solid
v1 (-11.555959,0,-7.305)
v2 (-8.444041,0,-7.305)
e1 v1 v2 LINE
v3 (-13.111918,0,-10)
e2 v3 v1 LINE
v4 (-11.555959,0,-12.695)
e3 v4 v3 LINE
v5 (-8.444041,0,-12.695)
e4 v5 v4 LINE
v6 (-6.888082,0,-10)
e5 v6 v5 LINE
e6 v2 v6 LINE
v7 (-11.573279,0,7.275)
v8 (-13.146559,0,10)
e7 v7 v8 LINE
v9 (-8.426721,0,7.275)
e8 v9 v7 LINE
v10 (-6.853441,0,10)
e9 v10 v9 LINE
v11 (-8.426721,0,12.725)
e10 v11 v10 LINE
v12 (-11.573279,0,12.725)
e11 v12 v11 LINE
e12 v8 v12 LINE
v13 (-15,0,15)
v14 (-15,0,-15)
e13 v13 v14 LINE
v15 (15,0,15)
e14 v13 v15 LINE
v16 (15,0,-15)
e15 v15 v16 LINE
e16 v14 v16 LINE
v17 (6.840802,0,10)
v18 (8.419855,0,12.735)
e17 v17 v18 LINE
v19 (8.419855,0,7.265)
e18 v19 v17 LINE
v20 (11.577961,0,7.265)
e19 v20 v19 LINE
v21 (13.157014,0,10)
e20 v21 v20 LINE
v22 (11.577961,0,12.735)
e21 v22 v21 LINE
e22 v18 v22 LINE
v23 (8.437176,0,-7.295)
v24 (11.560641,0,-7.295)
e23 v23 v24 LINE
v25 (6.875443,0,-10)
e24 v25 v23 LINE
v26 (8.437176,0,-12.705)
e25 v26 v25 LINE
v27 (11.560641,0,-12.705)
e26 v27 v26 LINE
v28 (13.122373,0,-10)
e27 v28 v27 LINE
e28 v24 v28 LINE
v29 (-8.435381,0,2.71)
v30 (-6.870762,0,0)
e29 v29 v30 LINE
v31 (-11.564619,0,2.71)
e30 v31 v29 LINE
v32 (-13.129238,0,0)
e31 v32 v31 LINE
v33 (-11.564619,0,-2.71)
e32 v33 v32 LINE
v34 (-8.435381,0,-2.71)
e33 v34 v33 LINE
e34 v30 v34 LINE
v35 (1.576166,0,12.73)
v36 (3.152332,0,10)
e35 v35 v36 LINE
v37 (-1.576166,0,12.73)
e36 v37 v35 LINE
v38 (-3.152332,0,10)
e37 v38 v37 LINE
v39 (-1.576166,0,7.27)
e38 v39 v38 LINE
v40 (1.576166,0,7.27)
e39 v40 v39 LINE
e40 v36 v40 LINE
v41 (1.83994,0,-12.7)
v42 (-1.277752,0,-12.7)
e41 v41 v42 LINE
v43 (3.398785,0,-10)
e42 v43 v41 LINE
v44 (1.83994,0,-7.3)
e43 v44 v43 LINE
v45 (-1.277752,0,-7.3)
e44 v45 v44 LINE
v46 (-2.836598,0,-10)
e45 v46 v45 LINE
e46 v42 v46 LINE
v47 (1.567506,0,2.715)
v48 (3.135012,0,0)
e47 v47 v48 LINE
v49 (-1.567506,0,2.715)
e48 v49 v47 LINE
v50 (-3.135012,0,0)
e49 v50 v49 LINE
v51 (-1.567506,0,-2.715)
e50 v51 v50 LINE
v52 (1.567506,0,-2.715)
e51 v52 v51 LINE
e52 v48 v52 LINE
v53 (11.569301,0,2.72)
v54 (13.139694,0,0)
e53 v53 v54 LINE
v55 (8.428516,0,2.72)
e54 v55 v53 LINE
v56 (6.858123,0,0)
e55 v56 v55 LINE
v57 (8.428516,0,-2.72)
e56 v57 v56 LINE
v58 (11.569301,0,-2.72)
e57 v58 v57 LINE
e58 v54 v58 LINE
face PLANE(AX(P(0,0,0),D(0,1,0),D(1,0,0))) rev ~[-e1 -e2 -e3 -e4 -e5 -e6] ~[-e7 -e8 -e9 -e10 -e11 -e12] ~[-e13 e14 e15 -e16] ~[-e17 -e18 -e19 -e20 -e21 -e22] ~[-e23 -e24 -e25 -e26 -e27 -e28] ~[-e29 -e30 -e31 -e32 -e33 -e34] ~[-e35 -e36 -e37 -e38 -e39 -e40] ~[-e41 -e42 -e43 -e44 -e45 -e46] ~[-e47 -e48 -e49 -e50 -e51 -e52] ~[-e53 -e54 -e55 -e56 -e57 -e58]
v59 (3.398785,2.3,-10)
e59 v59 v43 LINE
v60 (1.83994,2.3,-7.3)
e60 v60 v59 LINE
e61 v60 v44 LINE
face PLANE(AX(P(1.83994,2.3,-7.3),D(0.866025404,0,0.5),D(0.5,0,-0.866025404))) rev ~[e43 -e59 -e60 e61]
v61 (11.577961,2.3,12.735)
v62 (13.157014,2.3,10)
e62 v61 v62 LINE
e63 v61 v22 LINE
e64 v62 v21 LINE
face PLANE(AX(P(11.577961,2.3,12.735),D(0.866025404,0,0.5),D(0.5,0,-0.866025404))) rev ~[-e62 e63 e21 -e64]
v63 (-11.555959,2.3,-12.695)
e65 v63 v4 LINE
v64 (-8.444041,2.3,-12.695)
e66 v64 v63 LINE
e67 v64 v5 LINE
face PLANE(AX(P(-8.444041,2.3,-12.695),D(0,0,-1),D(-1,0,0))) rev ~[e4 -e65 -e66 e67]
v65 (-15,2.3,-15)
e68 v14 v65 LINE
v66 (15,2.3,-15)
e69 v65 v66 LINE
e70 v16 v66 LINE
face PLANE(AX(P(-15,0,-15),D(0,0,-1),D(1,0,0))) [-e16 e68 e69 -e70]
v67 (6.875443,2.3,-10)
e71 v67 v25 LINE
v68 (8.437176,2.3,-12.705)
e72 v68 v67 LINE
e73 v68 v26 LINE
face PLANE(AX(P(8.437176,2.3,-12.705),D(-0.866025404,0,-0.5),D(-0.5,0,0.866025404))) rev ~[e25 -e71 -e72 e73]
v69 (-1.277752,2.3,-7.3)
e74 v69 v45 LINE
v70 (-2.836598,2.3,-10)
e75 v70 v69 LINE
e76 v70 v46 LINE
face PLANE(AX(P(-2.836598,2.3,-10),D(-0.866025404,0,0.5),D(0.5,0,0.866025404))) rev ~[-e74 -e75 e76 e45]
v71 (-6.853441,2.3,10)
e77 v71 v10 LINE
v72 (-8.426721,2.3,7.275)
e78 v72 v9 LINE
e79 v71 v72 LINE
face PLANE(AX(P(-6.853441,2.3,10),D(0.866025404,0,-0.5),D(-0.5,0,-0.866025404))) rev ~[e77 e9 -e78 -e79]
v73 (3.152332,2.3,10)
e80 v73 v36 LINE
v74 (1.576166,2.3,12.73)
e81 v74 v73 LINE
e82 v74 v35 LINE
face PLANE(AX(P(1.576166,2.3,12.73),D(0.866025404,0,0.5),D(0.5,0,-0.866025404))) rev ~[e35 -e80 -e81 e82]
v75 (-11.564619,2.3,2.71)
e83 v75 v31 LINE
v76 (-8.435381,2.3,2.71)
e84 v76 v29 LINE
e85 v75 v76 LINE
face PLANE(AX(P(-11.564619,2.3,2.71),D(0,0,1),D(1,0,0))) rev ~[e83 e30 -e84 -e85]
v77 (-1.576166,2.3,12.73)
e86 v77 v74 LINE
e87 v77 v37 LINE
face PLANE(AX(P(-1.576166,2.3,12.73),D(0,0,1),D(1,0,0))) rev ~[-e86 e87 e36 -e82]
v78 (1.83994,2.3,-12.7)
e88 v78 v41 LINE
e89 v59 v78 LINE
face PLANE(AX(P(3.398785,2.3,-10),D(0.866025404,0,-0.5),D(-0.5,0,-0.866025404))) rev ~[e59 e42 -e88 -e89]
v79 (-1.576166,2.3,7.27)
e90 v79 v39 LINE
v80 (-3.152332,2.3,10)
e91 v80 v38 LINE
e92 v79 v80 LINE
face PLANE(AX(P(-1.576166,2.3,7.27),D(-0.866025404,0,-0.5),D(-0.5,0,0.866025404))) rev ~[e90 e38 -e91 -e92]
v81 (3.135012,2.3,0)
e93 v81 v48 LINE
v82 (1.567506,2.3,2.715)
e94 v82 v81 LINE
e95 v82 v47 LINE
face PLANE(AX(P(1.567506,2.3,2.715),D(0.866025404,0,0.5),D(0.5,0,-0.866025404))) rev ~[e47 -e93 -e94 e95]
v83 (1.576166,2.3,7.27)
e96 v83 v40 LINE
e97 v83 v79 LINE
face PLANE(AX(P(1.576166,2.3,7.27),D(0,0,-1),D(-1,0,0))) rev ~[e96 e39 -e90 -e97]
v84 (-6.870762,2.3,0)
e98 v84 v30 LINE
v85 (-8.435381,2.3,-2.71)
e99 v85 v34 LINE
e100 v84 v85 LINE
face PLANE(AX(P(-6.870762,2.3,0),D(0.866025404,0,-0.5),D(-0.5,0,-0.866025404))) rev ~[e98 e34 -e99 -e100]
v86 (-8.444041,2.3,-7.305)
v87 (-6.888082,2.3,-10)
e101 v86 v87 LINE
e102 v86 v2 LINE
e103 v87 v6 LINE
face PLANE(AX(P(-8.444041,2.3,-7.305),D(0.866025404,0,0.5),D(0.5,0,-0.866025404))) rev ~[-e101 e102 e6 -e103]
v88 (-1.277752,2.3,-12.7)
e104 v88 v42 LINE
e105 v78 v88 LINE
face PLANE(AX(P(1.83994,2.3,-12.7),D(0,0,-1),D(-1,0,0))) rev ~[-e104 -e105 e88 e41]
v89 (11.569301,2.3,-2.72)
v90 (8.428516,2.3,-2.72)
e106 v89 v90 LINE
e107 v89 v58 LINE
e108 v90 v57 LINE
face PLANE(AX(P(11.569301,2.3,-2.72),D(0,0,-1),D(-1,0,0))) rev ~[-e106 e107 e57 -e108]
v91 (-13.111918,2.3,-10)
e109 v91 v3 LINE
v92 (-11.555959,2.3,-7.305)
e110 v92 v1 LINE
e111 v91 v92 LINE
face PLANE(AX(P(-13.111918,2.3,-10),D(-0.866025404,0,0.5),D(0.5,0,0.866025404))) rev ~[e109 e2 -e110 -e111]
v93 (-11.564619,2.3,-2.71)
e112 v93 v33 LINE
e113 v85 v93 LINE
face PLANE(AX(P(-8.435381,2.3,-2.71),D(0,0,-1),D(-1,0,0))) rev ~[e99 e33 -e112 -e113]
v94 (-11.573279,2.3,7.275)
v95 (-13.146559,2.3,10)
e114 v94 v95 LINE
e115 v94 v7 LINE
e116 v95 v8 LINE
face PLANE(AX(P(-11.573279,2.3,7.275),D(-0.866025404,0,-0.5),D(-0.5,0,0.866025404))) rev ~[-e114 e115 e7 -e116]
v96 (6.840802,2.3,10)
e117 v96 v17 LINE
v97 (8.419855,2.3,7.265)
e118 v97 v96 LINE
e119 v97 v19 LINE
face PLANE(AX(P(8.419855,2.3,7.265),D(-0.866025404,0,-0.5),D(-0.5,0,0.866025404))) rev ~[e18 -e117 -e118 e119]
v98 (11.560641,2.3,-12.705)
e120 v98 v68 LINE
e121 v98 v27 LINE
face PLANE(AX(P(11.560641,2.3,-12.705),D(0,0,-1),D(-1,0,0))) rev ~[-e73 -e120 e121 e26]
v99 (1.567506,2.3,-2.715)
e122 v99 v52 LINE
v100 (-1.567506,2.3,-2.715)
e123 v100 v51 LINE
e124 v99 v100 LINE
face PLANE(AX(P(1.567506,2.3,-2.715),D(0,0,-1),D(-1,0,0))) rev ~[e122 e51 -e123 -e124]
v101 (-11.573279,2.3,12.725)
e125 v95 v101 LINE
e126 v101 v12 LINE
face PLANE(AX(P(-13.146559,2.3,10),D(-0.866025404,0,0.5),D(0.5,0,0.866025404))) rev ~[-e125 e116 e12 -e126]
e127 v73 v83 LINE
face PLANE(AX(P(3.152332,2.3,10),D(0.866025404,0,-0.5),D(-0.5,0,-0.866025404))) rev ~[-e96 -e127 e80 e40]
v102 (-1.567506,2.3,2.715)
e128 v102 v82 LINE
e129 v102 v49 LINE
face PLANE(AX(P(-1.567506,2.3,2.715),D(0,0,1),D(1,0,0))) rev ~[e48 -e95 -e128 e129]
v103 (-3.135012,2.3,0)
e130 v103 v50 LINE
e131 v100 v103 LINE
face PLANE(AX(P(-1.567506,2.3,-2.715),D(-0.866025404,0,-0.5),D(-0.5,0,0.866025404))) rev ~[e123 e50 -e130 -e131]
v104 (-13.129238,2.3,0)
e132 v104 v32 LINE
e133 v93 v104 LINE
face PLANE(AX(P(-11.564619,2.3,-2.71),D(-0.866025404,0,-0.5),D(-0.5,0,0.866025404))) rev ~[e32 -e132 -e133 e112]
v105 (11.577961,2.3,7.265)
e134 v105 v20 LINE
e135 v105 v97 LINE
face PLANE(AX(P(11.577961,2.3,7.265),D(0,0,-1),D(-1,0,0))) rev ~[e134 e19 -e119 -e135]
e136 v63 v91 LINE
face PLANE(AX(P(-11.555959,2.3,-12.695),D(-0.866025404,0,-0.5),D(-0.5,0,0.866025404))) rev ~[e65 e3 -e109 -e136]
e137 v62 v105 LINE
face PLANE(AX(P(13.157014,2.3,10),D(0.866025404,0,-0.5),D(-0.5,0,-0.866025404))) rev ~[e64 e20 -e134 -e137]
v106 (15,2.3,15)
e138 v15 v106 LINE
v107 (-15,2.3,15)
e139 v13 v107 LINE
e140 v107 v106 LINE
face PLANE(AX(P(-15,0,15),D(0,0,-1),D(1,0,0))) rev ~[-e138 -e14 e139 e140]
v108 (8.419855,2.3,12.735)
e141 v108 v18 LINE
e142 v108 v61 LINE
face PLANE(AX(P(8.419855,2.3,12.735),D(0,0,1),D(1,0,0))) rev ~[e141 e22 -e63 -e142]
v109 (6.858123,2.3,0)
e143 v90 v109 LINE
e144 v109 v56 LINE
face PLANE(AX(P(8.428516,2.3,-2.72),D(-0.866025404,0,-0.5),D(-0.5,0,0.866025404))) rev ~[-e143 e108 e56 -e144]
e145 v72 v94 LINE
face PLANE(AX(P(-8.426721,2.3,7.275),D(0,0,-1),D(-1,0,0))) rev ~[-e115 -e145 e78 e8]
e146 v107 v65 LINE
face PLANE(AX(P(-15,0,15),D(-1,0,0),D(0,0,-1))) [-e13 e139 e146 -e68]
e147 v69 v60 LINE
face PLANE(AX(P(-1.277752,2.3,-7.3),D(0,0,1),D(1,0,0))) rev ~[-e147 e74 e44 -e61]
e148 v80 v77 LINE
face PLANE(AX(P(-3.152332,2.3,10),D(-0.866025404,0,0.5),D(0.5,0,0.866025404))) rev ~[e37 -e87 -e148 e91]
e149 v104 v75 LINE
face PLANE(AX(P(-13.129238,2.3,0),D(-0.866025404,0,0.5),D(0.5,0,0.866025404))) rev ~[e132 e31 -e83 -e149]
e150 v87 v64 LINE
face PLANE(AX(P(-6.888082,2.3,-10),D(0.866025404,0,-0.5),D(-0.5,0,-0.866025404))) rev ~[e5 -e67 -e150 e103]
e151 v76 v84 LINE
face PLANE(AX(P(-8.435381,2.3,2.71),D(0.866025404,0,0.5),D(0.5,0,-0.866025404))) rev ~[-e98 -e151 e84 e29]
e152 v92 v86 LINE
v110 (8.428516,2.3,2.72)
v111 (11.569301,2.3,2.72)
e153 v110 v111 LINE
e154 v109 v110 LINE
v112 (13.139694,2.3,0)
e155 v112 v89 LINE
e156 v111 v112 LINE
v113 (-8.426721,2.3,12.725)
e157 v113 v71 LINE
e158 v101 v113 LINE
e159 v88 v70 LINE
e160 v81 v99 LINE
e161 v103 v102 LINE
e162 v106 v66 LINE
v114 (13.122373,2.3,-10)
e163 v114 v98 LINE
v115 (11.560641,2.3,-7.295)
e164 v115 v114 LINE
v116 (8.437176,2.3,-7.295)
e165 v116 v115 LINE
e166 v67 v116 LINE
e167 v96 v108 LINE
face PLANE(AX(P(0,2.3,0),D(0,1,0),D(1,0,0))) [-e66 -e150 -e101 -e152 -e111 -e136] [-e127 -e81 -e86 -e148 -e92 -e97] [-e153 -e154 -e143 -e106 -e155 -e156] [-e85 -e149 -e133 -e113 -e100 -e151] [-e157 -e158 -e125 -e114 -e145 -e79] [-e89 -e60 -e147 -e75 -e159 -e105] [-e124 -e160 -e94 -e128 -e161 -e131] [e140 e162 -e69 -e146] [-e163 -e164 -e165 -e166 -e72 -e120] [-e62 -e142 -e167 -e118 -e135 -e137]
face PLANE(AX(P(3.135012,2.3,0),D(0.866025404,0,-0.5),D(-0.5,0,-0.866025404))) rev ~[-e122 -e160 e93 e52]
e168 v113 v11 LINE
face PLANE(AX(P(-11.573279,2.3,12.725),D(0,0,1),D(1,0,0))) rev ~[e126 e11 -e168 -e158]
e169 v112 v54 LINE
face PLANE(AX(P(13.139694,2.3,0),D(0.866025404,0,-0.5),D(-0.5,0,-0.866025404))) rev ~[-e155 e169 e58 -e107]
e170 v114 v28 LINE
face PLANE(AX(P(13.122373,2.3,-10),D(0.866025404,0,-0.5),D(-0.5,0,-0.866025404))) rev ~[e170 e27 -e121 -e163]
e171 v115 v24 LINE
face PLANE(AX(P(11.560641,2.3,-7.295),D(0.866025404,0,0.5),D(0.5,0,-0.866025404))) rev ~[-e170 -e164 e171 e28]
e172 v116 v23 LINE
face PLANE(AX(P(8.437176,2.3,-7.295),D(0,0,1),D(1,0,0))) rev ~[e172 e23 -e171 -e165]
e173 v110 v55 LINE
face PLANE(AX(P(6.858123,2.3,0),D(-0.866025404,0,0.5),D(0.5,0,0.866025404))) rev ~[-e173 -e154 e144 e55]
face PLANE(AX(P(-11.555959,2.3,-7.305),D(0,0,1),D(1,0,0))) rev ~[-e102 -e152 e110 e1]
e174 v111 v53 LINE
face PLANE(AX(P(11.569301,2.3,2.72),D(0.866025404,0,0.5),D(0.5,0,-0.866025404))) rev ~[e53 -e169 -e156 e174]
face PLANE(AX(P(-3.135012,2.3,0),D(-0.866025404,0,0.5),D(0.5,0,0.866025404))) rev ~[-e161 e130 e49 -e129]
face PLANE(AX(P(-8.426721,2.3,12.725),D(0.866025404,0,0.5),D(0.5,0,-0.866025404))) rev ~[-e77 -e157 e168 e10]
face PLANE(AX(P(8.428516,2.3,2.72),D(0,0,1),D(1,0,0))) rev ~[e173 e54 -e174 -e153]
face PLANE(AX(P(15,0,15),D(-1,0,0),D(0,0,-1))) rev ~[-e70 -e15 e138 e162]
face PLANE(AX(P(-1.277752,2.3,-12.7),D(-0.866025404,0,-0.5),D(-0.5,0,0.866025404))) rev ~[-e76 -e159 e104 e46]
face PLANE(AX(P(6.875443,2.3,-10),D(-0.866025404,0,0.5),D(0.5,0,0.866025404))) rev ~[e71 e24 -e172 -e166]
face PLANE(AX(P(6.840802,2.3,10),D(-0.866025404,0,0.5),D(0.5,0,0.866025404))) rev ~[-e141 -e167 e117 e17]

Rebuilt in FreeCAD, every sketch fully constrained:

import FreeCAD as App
import Part
import Sketcher
Q = App.Units.Quantity


def add_polygon(sketch, points):
    """Adds a closed chain of lines whose ends are joined by coincident constraints."""
    first, n = sketch.GeometryCount, len(points)
    for a, b in zip(points, points[1:] + points[:1]):
        sketch.addGeometry(Part.LineSegment(App.Vector(*a, 0), App.Vector(*b, 0)), False)
    for i in range(n):
        sketch.addConstraint(Sketcher.Constraint("Coincident", first + i, 2, first + (i + 1) % n, 1))

doc = App.newDocument("Part")
body = doc.addObject("PartDesign::Body", "Body")

# Sketch on XZ plane
sketch1 = doc.addObject("Sketcher::SketchObject", "Sketch")
body.addObject(sketch1)
sketch1.AttachmentSupport = (doc.XZ_Plane, [""])
sketch1.MapMode = "FlatFace"
add_polygon(sketch1, [(-15, -15), (-15, 15), (15, 15), (15, -15)])  # lines 0-3
sketch1.addConstraint([
    Sketcher.Constraint("Vertical", 0),
    Sketcher.Constraint("Horizontal", 1),
    Sketcher.Constraint("Vertical", 2),
    Sketcher.Constraint("Horizontal", 3),
    Sketcher.Constraint("Symmetric", 0, 2, 2, 2, -1, 1),
    Sketcher.Constraint("Equal", 3, 0),
    Sketcher.Constraint("DistanceX", 1, 1, 1, 2, Q("30 mm")),
])
pad1 = doc.addObject("PartDesign::Pad", "Pad")
body.addObject(pad1)
pad1.Profile = sketch1
pad1.Length = 2.3
pad1.Reversed = True

# Sketch on XZ plane
sketch2 = doc.addObject("Sketcher::SketchObject", "Sketch001")
body.addObject(sketch2)
sketch2.AttachmentSupport = (doc.XZ_Plane, [""])
sketch2.MapMode = "FlatFace"
sketch2.AttachmentOffset = App.Placement(App.Vector(0, 0, -2.3), App.Rotation())
add_polygon(sketch2, [(3.1, 0), (1.6, -2.7), (-1.6, -2.7), (-3.1, 0), (-1.6, 2.7), (1.6, 2.7)])  # lines 0-5
add_polygon(sketch2, [(-6.9, -10), (-8.4, -12.7), (-11.6, -12.7), (-13.1, -10), (-11.6, -7.3), (-8.4, -7.3)])  # lines 6-11
add_polygon(sketch2, [(3.4, -10), (1.8, -12.7), (-1.3, -12.7), (-2.8, -10), (-1.3, -7.3), (1.8, -7.3)])  # lines 12-17
add_polygon(sketch2, [(13.1, -10), (11.6, -12.7), (8.4, -12.7), (6.9, -10), (8.4, -7.3), (11.6, -7.3)])  # lines 18-23
add_polygon(sketch2, [(13.1, 0), (11.6, -2.7), (8.4, -2.7), (6.9, 0), (8.4, 2.7), (11.6, 2.7)])  # lines 24-29
add_polygon(sketch2, [(13.2, 10), (11.6, 7.3), (8.4, 7.3), (6.8, 10), (8.4, 12.7), (11.6, 12.7)])  # lines 30-35
add_polygon(sketch2, [(3.2, 10), (1.6, 7.3), (-1.6, 7.3), (-3.2, 10), (-1.6, 12.7), (1.6, 12.7)])  # lines 36-41
add_polygon(sketch2, [(-6.9, 10), (-8.4, 7.3), (-11.6, 7.3), (-13.1, 10), (-11.6, 12.7), (-8.4, 12.7)])  # lines 42-47
add_polygon(sketch2, [(-6.9, 0), (-8.4, -2.7), (-11.6, -2.7), (-13.1, 0), (-11.6, 2.7), (-8.4, 2.7)])  # lines 48-53
sketch2.addConstraint([
    Sketcher.Constraint("Horizontal", 1),
    Sketcher.Constraint("Horizontal", 4),
    Sketcher.Constraint("Horizontal", 7),
    Sketcher.Constraint("Horizontal", 10),
    Sketcher.Constraint("Horizontal", 13),
    Sketcher.Constraint("Horizontal", 16),
    Sketcher.Constraint("Horizontal", 19),
    Sketcher.Constraint("Horizontal", 22),
    Sketcher.Constraint("Horizontal", 25),
    Sketcher.Constraint("Horizontal", 28),
    Sketcher.Constraint("Horizontal", 31),
    Sketcher.Constraint("Horizontal", 34),
    Sketcher.Constraint("Horizontal", 37),
    Sketcher.Constraint("Horizontal", 40),
    Sketcher.Constraint("Horizontal", 43),
    Sketcher.Constraint("Horizontal", 46),
    Sketcher.Constraint("Horizontal", 49),
    Sketcher.Constraint("Horizontal", 52),
    Sketcher.Constraint("Symmetric", 0, 2, 3, 2, -1, 1),
    Sketcher.Constraint("Symmetric", 2, 2, 5, 2, -1, 1),
    Sketcher.Constraint("Symmetric", 38, 2, 41, 2, -2),
    Sketcher.Constraint("Symmetric", 25, 2, 27, 2, -1),
    Sketcher.Constraint("Symmetric", 49, 2, 51, 2, -1),
    Sketcher.Constraint("PointOnObject", 2, 2, -1),
    Sketcher.Constraint("PointOnObject", 26, 2, -1),
    Sketcher.Constraint("PointOnObject", 29, 2, -1),
    Sketcher.Constraint("PointOnObject", 50, 2, -1),
    Sketcher.Constraint("PointOnObject", 53, 2, -1),
    Sketcher.Constraint("Parallel", 2, 5),
    Sketcher.Constraint("Parallel", 3, 6),
    Sketcher.Constraint("Parallel", 5, 8),
    Sketcher.Constraint("Parallel", 6, 9),
    Sketcher.Constraint("Parallel", 8, 11),
    Sketcher.Constraint("Parallel", 9, 12),
    Sketcher.Constraint("Parallel", 11, 14),
    Sketcher.Constraint("Parallel", 12, 15),
    Sketcher.Constraint("Parallel", 14, 17),
    Sketcher.Constraint("Parallel", 15, 18),
    Sketcher.Constraint("Parallel", 17, 20),
    Sketcher.Constraint("Parallel", 18, 21),
    Sketcher.Constraint("Parallel", 20, 23),
    Sketcher.Constraint("Parallel", 21, 24),
    Sketcher.Constraint("Parallel", 23, 26),
    Sketcher.Constraint("Parallel", 24, 27),
    Sketcher.Constraint("Parallel", 26, 29),
    Sketcher.Constraint("Parallel", 27, 30),
    Sketcher.Constraint("Parallel", 29, 32),
    Sketcher.Constraint("Parallel", 30, 33),
    Sketcher.Constraint("Parallel", 32, 35),
    Sketcher.Constraint("Parallel", 33, 36),
    Sketcher.Constraint("Parallel", 35, 38),
    Sketcher.Constraint("Parallel", 36, 39),
    Sketcher.Constraint("Parallel", 38, 41),
    Sketcher.Constraint("Parallel", 39, 42),
    Sketcher.Constraint("Parallel", 41, 44),
    Sketcher.Constraint("Parallel", 42, 45),
    Sketcher.Constraint("Parallel", 44, 47),
    Sketcher.Constraint("Parallel", 45, 48),
    Sketcher.Constraint("Parallel", 47, 50),
    Sketcher.Constraint("Parallel", 50, 53),
    Sketcher.Constraint("Horizontal", 8, 2, 11, 2),
    Sketcher.Constraint("Horizontal", 11, 2, 14, 2),
    Sketcher.Constraint("Horizontal", 14, 2, 17, 2),
    Sketcher.Constraint("Horizontal", 17, 2, 20, 2),
    Sketcher.Constraint("Horizontal", 20, 2, 23, 2),
    Sketcher.Constraint("Horizontal", 32, 2, 35, 2),
    Sketcher.Constraint("Horizontal", 35, 2, 38, 2),
    Sketcher.Constraint("Horizontal", 41, 2, 44, 2),
    Sketcher.Constraint("Horizontal", 44, 2, 47, 2),
    Sketcher.Constraint("Vertical", 7, 2, 9, 2),
    Sketcher.Constraint("Vertical", 13, 2, 15, 2),
    Sketcher.Constraint("Vertical", 19, 2, 21, 2),
    Sketcher.Constraint("Vertical", 31, 2, 33, 2),
    Sketcher.Constraint("Vertical", 37, 2, 39, 2),
    Sketcher.Constraint("Vertical", 43, 2, 45, 2),
    Sketcher.Constraint("Angle", 0, Q("-120 deg")),
    Sketcher.Constraint("DistanceY", 8, 2, -1, 1, Q("10 mm")),
    Sketcher.Constraint("DistanceY", -1, 1, 32, 2, Q("10 mm")),
    Sketcher.Constraint("DistanceY", 12, 2, -1, 1, Q("12.7 mm")),
    Sketcher.Constraint("DistanceY", 24, 2, -1, 1, Q("2.72 mm")),
    Sketcher.Constraint("DistanceY", -1, 1, 36, 2, Q("7.27 mm")),
    Sketcher.Constraint("DistanceY", 48, 2, -1, 1, Q("2.71 mm")),
    Sketcher.Constraint("DistanceY", 1, 2, 3, 2, Q("5.43 mm")),
    Sketcher.Constraint("DistanceY", 6, 2, 1, 2, Q("9.98 mm")),
    Sketcher.Constraint("DistanceY", 19, 2, 21, 2, Q("5.41 mm")),
    Sketcher.Constraint("DistanceY", 4, 2, 31, 2, Q("4.55 mm")),
    Sketcher.Constraint("DistanceY", 3, 2, 42, 2, Q("4.56 mm")),
    Sketcher.Constraint("DistanceX", 1, 2, 1, 1, Q("3.135012 mm")),
    Sketcher.Constraint("DistanceX", 13, 2, 13, 1, Q("3.117691 mm")),
    Sketcher.Constraint("DistanceX", 43, 2, 43, 1, Q("3.146559 mm")),
    Sketcher.Constraint("DistanceX", 49, 2, 49, 1, Q("3.129238 mm")),
    Sketcher.Constraint("DistanceX", -1, 1, 24, 2, Q("11.569301 mm")),
    Sketcher.Constraint("DistanceX", 12, 2, 18, 2, Q("9.720701 mm")),
    Sketcher.Constraint("DistanceX", 32, 2, 28, 2, Q("4.728499 mm")),
    Sketcher.Constraint("DistanceX", 38, 2, 36, 2, Q("4.728499 mm")),
    Sketcher.Constraint("DistanceX", 48, 2, 11, 2, Q("1.547299 mm")),
    Sketcher.Constraint("DistanceX", 8, 2, 49, 2, Q("1.547299 mm")),
    Sketcher.Constraint("DistanceX", 51, 2, 42, 2, Q("3.137899 mm")),
    Sketcher.Constraint("DistanceX", 19, 2, 19, 1, Q("3.123465 mm")),
    Sketcher.Constraint("DistanceX", 25, 2, 25, 1, Q("3.140785 mm")),
    Sketcher.Constraint("DistanceX", 31, 2, 31, 1, Q("3.158106 mm")),
    Sketcher.Constraint("DistanceX", 6, 2, -1, 1, Q("8.444041 mm")),
    Sketcher.Constraint("DistanceX", -1, 1, 12, 2, Q("1.83994 mm")),
])
pocket1 = doc.addObject("PartDesign::Pocket", "Pocket")
body.addObject(pocket1)
pocket1.Profile = sketch2
pocket1.Length = 2.3
pocket1.Reversed = True

doc.recompute()
